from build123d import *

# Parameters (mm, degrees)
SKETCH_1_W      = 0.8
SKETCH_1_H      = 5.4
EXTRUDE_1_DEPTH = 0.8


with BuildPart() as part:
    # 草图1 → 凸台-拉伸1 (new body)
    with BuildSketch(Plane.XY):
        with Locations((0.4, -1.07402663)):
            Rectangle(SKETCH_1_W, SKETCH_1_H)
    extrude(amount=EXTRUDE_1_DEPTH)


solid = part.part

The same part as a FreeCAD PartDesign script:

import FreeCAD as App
import Part
import Sketcher
from FreeCAD import Vector


def add_polygon(sketch, points):
    """Adds a closed chain of lines whose ends are joined by coincident constraints."""
    first, n = sketch.GeometryCount, len(points)
    for a, b in zip(points, points[1:] + points[:1]):
        sketch.addGeometry(Part.LineSegment(App.Vector(*a, 0), App.Vector(*b, 0)), False)
    for i in range(n):
        sketch.addConstraint(Sketcher.Constraint("Coincident", first + i, 2, first + (i + 1) % n, 1))

doc = App.newDocument("Part")
body = doc.addObject("PartDesign::Body", "Body")

# Sketch on XY plane
sketch1 = body.newObject("Sketcher::SketchObject", "Sketch")
sketch1.AttachmentSupport = (doc.getObject("XY_Plane"), [""])
sketch1.MapMode = "FlatFace"
add_polygon(sketch1, [(0, 1.625973), (0, -3.774027), (0.8, -3.774027), (0.8, 1.625973)])  # lines 0-3
sketch1.addConstraint([
    Sketcher.Constraint("Vertical", 0),
    Sketcher.Constraint("Horizontal", 1),
    Sketcher.Constraint("Vertical", 2),
    Sketcher.Constraint("Horizontal", 3),
    Sketcher.Constraint("PointOnObject", 0, 2, -2),
    Sketcher.Constraint("DistanceX", 1, 1, 1, 2, 0.8),
    Sketcher.Constraint("DistanceY", 0, 2, 0, 1, 5.4),
    Sketcher.Constraint("DistanceY", 0, 2, -1, 1, 3.774027),
])
pad1 = body.newObject("PartDesign::Pad", "Pad")
pad1.Profile = sketch1
pad1.Length = 0.8

doc.recompute()
